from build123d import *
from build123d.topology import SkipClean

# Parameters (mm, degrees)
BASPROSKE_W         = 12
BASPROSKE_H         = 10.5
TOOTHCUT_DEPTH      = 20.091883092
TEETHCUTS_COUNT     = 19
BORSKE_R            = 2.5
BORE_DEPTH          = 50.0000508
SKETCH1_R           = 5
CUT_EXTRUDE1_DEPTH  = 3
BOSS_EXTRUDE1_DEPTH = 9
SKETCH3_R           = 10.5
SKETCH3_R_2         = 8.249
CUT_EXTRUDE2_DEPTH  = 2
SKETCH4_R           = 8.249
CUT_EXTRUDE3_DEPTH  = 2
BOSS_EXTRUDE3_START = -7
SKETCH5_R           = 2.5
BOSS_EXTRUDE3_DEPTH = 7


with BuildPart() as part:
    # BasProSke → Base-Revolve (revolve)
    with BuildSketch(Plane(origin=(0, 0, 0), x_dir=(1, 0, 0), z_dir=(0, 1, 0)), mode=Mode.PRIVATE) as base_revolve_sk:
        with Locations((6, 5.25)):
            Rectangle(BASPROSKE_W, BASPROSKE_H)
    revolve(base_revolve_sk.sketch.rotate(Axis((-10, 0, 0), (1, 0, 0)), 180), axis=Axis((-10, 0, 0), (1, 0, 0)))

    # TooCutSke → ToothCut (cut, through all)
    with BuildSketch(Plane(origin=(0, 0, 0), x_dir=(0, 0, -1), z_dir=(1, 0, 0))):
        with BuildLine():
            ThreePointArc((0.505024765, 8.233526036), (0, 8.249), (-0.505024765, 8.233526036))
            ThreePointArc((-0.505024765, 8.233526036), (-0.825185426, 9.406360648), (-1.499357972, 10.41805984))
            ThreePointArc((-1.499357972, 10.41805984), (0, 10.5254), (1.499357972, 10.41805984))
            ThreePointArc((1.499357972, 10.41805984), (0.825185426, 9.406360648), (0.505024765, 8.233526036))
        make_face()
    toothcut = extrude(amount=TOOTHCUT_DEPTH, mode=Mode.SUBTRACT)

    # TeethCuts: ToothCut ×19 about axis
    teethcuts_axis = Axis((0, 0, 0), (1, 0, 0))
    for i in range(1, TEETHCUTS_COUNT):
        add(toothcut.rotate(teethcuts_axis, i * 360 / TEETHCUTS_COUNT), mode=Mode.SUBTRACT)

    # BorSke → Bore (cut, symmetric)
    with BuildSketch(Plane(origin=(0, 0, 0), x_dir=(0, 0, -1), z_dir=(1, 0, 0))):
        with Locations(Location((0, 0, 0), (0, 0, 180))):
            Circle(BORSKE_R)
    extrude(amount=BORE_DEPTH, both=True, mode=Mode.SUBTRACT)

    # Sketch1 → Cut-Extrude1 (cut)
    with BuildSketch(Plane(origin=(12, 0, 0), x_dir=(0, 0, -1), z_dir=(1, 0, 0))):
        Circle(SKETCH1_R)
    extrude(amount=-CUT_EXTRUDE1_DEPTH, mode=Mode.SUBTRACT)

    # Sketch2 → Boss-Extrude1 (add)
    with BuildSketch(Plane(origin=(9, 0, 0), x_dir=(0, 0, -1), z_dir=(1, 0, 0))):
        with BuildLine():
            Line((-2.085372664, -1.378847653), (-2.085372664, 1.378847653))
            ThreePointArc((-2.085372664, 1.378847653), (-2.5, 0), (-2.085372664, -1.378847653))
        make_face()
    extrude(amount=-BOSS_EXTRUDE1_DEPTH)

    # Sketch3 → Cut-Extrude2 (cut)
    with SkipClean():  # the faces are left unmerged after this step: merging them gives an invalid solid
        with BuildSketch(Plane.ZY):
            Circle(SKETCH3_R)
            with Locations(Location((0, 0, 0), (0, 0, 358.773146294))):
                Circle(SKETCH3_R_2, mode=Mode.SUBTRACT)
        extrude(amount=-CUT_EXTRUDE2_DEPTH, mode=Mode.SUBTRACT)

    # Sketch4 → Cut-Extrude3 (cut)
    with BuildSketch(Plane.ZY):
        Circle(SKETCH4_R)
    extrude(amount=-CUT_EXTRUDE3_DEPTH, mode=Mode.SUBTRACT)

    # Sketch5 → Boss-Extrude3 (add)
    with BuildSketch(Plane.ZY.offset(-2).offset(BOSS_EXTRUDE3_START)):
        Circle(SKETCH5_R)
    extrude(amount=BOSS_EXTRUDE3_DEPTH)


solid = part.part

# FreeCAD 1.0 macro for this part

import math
import FreeCAD as App
import Part
import Sketcher

V = App.Vector


def add_polygon(sketch, points):
    """Adds a closed chain of lines whose ends are joined by coincident constraints."""
    first, n = sketch.GeometryCount, len(points)
    for a, b in zip(points, points[1:] + points[:1]):
        sketch.addGeometry(Part.LineSegment(App.Vector(*a, 0), App.Vector(*b, 0)), False)
    for i in range(n):
        sketch.addConstraint(Sketcher.Constraint("Coincident", first + i, 2, first + (i + 1) % n, 1))

doc = App.newDocument("Part")
params = doc.addObject("Spreadsheet::Sheet", "Params")
for row, (alias, value) in enumerate([
    ("sketch1_width", "12 mm"),
    ("sketch1_height", "10.5 mm"),
    ("revolution_angle", "360 deg"),
    ("sketch2_radius", "3.8 mm"),
    ("sketch3_diameter", "5 mm"),
    ("pocket2_length", "100.000102 mm"),
    ("sketch4_diameter", "10 mm"),
    ("pocket3_length", "3 mm"),
    ("sketch5_radius", "2.5 mm"),
    ("pad1_length", "9 mm"),
    ("sketch6_diameter", "21 mm"),
    ("pocket4_length", "2 mm"),
    ("pocket5_length", "2 mm"),
    ("sketch8_diameter", "5 mm"),
    ("pad2_length", "7 mm"),
], start=1):
    params.set(f"A{row}", alias)
    params.set(f"B{row}", "=" + value)
    params.setAlias(f"B{row}", alias)

body = doc.addObject("PartDesign::Body", "Body")

# Sketch on XZ plane
sketch1 = doc.addObject("Sketcher::SketchObject", "Sketch")
body.addObject(sketch1)
sketch1.AttachmentSupport = (doc.XZ_Plane, [""])
sketch1.MapMode = "FlatFace"
add_polygon(sketch1, [(0, -10), (0, 0), (12, 0), (12, -10)])  # lines 0-3
sketch1.addConstraint([
    Sketcher.Constraint("Vertical", 0),
    Sketcher.Constraint("Horizontal", 1),
    Sketcher.Constraint("Vertical", 2),
    Sketcher.Constraint("Horizontal", 3),
    Sketcher.Constraint("Coincident", 0, 2, -1, 1),
    Sketcher.Constraint("DistanceX", 1, 1, 1, 2, 12.0),
    Sketcher.Constraint("DistanceY", 0, 1, 0, 2, 10.5),
])
sketch1.setExpression("Constraints[9]", "Params.sketch1_width")
sketch1.setExpression("Constraints[10]", "Params.sketch1_height")
revolution = doc.addObject("PartDesign::Revolution", "Revolution")
body.addObject(revolution)
revolution.Profile = sketch1
revolution.ReferenceAxis = (sketch1, ["H_Axis"])
revolution.setExpression("Angle", "Params.revolution_angle")

# Sketch on YZ plane
sketch2 = doc.addObject("Sketcher::SketchObject", "Sketch001")
body.addObject(sketch2)
sketch2.AttachmentSupport = (doc.YZ_Plane, [""])
sketch2.MapMode = "FlatFace"
sketch2.addGeometry([
    Part.ArcOfCircle(Part.Circle(V(0, 0, 0), V(0, 0, 1), 8.2), math.radians(-3.51), math.radians(3.51)),
    Part.ArcOfCircle(Part.Circle(V(7.8, -4.3, 0), V(0, 0, 1), 3.8), math.radians(47), math.radians(84)),
    Part.ArcOfCircle(Part.Circle(V(0, 0, 0), V(0, 0, 1), 10.5), math.radians(-8.19), math.radians(8.19)),
    Part.ArcOfCircle(Part.Circle(V(7.8, 4.3, 0), V(0, 0, 1), 3.8), math.radians(-84), math.radians(-47)),
], False)
sketch2.addConstraint([
    Sketcher.Constraint("Coincident", 0, 1, 1, 2),
    Sketcher.Constraint("Coincident", 1, 1, 2, 1),
    Sketcher.Constraint("Coincident", 2, 2, 3, 2),
    Sketcher.Constraint("Coincident", 3, 1, 0, 2),
    Sketcher.Constraint("Coincident", 0, 3, -1, 1),
    Sketcher.Constraint("Coincident", 2, 3, -1, 1),
    Sketcher.Constraint("Equal", 1, 3),
    Sketcher.Constraint("Symmetric", 1, 3, 3, 3, -1),
    Sketcher.Constraint("Radius", 1, 3.8),
    Sketcher.Constraint("Radius", 0, 8.249),
    Sketcher.Constraint("Radius", 2, 10.5254),
    Sketcher.Constraint("DistanceX", -1, 1, 1, 3, 7.832121),
    Sketcher.Constraint("DistanceX", -1, 1, 1, 1, 10.41806),
])
sketch2.setExpression("Constraints[8]", "Params.sketch2_radius")
pocket1 = doc.addObject("PartDesign::Pocket", "Pocket")
body.addObject(pocket1)
pocket1.Profile = sketch2
pocket1.Type = "ThroughAll"
pocket1.Reversed = True
doc.recompute()

polarpattern = doc.addObject("PartDesign::PolarPattern", "PolarPattern")
body.addObject(polarpattern)
polarpattern.Originals = [pocket1]
polarpattern.Axis = (doc.X_Axis, [""])
polarpattern.Angle = 360
polarpattern.Occurrences = 19
body.Tip = polarpattern

# Sketch on YZ plane
sketch3 = doc.addObject("Sketcher::SketchObject", "Sketch002")
body.addObject(sketch3)
sketch3.AttachmentSupport = (doc.YZ_Plane, [""])
sketch3.MapMode = "FlatFace"
sketch3.addGeometry(Part.Circle(V(0, 0, 0), V(0, 0, 1), 2.5), False)
sketch3.addConstraint([
    Sketcher.Constraint("Coincident", 0, 3, -1, 1),
    Sketcher.Constraint("Diameter", 0, 5.0),
])
sketch3.setExpression("Constraints[1]", "Params.sketch3_diameter")
pocket2 = doc.addObject("PartDesign::Pocket", "Pocket001")
body.addObject(pocket2)
pocket2.Profile = sketch3
pocket2.setExpression("Length", "Params.pocket2_length")
pocket2.Midplane = True

# Sketch on YZ plane
sketch4 = doc.addObject("Sketcher::SketchObject", "Sketch003")
body.addObject(sketch4)
sketch4.AttachmentSupport = (doc.YZ_Plane, [""])
sketch4.MapMode = "FlatFace"
sketch4.AttachmentOffset = App.Placement(V(0, 0, 12), App.Rotation())
sketch4.addGeometry(Part.Circle(V(0, 0, 0), V(0, 0, 1), 5), False)
sketch4.addConstraint([
    Sketcher.Constraint("Coincident", 0, 3, -1, 1),
    Sketcher.Constraint("Diameter", 0, 10.0),
])
sketch4.setExpression("Constraints[1]", "Params.sketch4_diameter")
pocket3 = doc.addObject("PartDesign::Pocket", "Pocket002")
body.addObject(pocket3)
pocket3.Profile = sketch4
pocket3.setExpression("Length", "Params.pocket3_length")

# Sketch on YZ plane
sketch5 = doc.addObject("Sketcher::SketchObject", "Sketch004")
body.addObject(sketch5)
sketch5.AttachmentSupport = (doc.YZ_Plane, [""])
sketch5.MapMode = "FlatFace"
sketch5.AttachmentOffset = App.Placement(V(0, 0, 9), App.Rotation())
sketch5.addGeometry([
    Part.LineSegment(V(-1.4, 2.1, 0), V(1.4, 2.1, 0)),
    Part.ArcOfCircle(Part.Circle(V(0, 0, 0), V(0, 0, 1), 2.5), math.radians(57), math.radians(123)),
], False)
sketch5.addConstraint([
    Sketcher.Constraint("Coincident", 0, 1, 1, 2),
    Sketcher.Constraint("Coincident", 1, 1, 0, 2),
    Sketcher.Constraint("Horizontal", 0),
    Sketcher.Constraint("Coincident", 1, 3, -1, 1),
    Sketcher.Constraint("Radius", 1, 2.5),
    Sketcher.Constraint("DistanceX", 0, 1, 0, 2, 2.757695),
])
sketch5.setExpression("Constraints[4]", "Params.sketch5_radius")
pad1 = doc.addObject("PartDesign::Pad", "Pad")
body.addObject(pad1)
pad1.Profile = sketch5
pad1.setExpression("Length", "Params.pad1_length")
pad1.Reversed = True

# Sketch on YZ plane
sketch6 = doc.addObject("Sketcher::SketchObject", "Sketch005")
body.addObject(sketch6)
sketch6.AttachmentSupport = (doc.YZ_Plane, [""])
sketch6.MapMode = "FlatFace"
sketch6.addGeometry([
    Part.Circle(V(0, 0, 0), V(0, 0, 1), 10),
    Part.Circle(V(0, 0, 0), V(0, 0, 1), 8),
], False)
sketch6.addConstraint([
    Sketcher.Constraint("Coincident", 0, 3, -1, 1),
    Sketcher.Constraint("Coincident", 1, 3, -1, 1),
    Sketcher.Constraint("Diameter", 0, 21.0),
    Sketcher.Constraint("Diameter", 1, 16.498),
])
sketch6.setExpression("Constraints[2]", "Params.sketch6_diameter")
pocket4 = doc.addObject("PartDesign::Pocket", "Pocket003")
body.addObject(pocket4)
pocket4.Profile = sketch6
pocket4.setExpression("Length", "Params.pocket4_length")
pocket4.Reversed = True

# Sketch on YZ plane
sketch7 = doc.addObject("Sketcher::SketchObject", "Sketch006")
body.addObject(sketch7)
sketch7.AttachmentSupport = (doc.YZ_Plane, [""])
sketch7.MapMode = "FlatFace"
sketch7.addGeometry(Part.Circle(V(0, 0, 0), V(0, 0, 1), 8), False)
sketch7.addConstraint([
    Sketcher.Constraint("Coincident", 0, 3, -1, 1),
    Sketcher.Constraint("Diameter", 0, 16.498),
])
pocket5 = doc.addObject("PartDesign::Pocket", "Pocket004")
body.addObject(pocket5)
pocket5.Profile = sketch7
pocket5.setExpression("Length", "Params.pocket5_length")
pocket5.Reversed = True

# Sketch on YZ plane
sketch8 = doc.addObject("Sketcher::SketchObject", "Sketch007")
body.addObject(sketch8)
sketch8.AttachmentSupport = (doc.YZ_Plane, [""])
sketch8.MapMode = "FlatFace"
sketch8.AttachmentOffset = App.Placement(V(0, 0, 9), App.Rotation())
sketch8.addGeometry(Part.Circle(V(0, 0, 0), V(0, 0, 1), 2.5), False)
sketch8.addConstraint([
    Sketcher.Constraint("Coincident", 0, 3, -1, 1),
    Sketcher.Constraint("Diameter", 0, 5.0),
])
sketch8.setExpression("Constraints[1]", "Params.sketch8_diameter")
pad2 = doc.addObject("PartDesign::Pad", "Pad001")
body.addObject(pad2)
pad2.Profile = sketch8
pad2.setExpression("Length", "Params.pad2_length")
pad2.Reversed = True

doc.recompute()
